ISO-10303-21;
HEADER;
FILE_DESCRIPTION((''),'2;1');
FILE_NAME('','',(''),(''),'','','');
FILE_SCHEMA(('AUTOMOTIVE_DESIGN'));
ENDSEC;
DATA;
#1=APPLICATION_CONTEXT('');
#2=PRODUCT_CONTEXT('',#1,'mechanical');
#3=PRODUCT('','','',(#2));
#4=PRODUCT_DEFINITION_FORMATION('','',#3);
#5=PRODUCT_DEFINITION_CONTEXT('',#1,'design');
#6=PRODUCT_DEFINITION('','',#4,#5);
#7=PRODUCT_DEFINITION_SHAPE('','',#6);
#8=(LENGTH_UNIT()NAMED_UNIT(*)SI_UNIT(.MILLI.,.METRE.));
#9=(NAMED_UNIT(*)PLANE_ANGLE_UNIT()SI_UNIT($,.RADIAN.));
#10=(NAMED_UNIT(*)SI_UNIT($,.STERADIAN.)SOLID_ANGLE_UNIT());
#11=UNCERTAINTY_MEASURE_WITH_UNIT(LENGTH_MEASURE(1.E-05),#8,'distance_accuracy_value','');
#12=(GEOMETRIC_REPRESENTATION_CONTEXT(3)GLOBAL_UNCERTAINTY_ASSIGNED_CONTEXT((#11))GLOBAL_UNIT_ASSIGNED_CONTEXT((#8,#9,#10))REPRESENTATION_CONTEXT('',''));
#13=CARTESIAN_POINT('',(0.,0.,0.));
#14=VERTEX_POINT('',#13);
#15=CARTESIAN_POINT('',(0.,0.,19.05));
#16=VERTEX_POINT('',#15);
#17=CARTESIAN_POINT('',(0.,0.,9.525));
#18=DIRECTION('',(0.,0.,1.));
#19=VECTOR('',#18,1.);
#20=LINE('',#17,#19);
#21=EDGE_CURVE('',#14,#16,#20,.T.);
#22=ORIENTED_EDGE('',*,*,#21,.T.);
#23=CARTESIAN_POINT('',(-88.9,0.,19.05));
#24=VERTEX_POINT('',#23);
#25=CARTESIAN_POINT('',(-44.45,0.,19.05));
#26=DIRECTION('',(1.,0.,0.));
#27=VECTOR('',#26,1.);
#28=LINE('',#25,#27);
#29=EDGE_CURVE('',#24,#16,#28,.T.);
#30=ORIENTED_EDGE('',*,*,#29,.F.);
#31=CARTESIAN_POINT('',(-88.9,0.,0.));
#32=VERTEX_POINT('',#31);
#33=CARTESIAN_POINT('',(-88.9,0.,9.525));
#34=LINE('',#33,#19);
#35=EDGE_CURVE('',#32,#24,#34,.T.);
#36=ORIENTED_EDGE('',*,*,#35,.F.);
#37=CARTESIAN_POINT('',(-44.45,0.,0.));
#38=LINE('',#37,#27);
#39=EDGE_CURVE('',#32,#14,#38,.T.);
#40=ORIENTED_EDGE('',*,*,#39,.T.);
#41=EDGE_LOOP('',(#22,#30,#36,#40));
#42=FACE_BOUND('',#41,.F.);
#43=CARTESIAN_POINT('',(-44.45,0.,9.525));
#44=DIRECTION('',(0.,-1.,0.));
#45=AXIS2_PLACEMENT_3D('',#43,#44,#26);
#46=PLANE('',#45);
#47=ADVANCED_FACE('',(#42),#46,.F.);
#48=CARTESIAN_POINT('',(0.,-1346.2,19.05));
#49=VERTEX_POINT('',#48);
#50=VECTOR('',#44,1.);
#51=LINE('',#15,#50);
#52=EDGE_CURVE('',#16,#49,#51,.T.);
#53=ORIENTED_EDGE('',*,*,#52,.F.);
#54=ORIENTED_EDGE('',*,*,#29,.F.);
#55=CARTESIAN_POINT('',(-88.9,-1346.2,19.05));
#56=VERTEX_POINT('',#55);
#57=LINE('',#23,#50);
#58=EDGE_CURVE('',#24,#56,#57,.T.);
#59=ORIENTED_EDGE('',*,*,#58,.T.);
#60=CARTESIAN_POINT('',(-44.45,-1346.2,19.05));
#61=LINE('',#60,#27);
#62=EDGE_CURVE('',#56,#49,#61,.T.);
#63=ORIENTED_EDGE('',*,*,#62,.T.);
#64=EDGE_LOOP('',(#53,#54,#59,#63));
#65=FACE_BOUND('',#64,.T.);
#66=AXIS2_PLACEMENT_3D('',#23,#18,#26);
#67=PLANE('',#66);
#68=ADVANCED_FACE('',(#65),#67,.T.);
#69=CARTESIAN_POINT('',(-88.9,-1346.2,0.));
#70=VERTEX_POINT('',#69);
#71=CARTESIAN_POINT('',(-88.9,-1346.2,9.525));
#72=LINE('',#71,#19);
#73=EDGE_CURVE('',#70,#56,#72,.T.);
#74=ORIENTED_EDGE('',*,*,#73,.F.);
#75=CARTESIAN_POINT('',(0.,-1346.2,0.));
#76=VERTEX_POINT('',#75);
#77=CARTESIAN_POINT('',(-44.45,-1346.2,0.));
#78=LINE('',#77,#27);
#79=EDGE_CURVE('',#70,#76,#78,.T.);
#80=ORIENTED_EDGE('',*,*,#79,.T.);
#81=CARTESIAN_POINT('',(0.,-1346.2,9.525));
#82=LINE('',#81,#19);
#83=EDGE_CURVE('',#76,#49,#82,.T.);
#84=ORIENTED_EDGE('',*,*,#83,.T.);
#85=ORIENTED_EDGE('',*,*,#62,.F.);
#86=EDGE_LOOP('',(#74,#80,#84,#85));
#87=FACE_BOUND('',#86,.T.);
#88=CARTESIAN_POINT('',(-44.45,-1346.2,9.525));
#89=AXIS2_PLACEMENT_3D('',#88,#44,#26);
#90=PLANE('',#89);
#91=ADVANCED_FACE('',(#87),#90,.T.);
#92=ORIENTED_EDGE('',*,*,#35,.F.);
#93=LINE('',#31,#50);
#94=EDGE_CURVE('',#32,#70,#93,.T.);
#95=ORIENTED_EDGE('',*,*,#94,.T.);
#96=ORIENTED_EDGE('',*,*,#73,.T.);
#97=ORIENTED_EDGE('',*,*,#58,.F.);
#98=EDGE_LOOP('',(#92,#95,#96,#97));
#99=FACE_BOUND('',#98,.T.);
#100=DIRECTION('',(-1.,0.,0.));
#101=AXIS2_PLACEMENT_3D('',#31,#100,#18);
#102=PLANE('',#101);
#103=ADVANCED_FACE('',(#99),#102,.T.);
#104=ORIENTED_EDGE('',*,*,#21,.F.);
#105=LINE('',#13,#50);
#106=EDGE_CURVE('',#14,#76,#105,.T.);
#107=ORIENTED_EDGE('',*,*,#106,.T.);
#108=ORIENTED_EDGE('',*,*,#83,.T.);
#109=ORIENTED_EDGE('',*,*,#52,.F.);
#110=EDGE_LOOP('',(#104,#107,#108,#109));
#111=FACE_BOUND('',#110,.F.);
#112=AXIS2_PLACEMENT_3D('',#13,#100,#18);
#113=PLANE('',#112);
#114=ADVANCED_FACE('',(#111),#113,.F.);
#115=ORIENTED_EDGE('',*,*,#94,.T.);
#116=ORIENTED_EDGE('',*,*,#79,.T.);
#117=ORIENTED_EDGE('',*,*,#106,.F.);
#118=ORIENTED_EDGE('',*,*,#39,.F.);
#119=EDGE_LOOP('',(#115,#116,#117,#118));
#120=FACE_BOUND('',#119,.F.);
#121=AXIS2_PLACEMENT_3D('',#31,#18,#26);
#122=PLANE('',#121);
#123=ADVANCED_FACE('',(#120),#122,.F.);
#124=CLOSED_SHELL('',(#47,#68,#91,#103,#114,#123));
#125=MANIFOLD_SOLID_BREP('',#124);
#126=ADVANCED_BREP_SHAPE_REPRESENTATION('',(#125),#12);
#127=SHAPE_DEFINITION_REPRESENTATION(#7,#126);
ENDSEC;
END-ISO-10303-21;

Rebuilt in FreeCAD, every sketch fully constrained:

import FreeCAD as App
import Part
import Sketcher

V = App.Vector
Q = App.Units.Quantity

doc = App.newDocument("Part")
body = doc.addObject("PartDesign::Body", "Body")

# Sketch on XZ plane
sketch1 = body.newObject("Sketcher::SketchObject", "Sketch")
sketch1.AttachmentSupport = (doc.getObject("XZ_Plane"), [""])
sketch1.MapMode = "FlatFace"
sketch1.addGeometry([
    Part.LineSegment(V(-89, 19, 0), V(-89, 0, 0)),
    Part.LineSegment(V(-89, 0, 0), V(0, 0, 0)),
    Part.LineSegment(V(0, 0, 0), V(0, 19, 0)),
    Part.LineSegment(V(0, 19, 0), V(-89, 19, 0)),
], False)
sketch1.addConstraint([
    Sketcher.Constraint("Coincident", 0, 2, 1, 1),
    Sketcher.Constraint("Coincident", 1, 2, 2, 1),
    Sketcher.Constraint("Coincident", 2, 2, 3, 1),
    Sketcher.Constraint("Coincident", 3, 2, 0, 1),
    Sketcher.Constraint("Vertical", 0),
    Sketcher.Constraint("Horizontal", 1),
    Sketcher.Constraint("Vertical", 2),
    Sketcher.Constraint("Horizontal", 3),
    Sketcher.Constraint("Coincident", 1, 2, -1, 1),
    Sketcher.Constraint("DistanceX", 1, 1, 1, 2, Q("3.5 in")),
    Sketcher.Constraint("DistanceY", 0, 2, 0, 1, Q("0.75 in")),
])
pad1 = body.newObject("PartDesign::Pad", "Pad")
pad1.Profile = sketch1
pad1.Length = Q("53 in")

doc.recompute()
